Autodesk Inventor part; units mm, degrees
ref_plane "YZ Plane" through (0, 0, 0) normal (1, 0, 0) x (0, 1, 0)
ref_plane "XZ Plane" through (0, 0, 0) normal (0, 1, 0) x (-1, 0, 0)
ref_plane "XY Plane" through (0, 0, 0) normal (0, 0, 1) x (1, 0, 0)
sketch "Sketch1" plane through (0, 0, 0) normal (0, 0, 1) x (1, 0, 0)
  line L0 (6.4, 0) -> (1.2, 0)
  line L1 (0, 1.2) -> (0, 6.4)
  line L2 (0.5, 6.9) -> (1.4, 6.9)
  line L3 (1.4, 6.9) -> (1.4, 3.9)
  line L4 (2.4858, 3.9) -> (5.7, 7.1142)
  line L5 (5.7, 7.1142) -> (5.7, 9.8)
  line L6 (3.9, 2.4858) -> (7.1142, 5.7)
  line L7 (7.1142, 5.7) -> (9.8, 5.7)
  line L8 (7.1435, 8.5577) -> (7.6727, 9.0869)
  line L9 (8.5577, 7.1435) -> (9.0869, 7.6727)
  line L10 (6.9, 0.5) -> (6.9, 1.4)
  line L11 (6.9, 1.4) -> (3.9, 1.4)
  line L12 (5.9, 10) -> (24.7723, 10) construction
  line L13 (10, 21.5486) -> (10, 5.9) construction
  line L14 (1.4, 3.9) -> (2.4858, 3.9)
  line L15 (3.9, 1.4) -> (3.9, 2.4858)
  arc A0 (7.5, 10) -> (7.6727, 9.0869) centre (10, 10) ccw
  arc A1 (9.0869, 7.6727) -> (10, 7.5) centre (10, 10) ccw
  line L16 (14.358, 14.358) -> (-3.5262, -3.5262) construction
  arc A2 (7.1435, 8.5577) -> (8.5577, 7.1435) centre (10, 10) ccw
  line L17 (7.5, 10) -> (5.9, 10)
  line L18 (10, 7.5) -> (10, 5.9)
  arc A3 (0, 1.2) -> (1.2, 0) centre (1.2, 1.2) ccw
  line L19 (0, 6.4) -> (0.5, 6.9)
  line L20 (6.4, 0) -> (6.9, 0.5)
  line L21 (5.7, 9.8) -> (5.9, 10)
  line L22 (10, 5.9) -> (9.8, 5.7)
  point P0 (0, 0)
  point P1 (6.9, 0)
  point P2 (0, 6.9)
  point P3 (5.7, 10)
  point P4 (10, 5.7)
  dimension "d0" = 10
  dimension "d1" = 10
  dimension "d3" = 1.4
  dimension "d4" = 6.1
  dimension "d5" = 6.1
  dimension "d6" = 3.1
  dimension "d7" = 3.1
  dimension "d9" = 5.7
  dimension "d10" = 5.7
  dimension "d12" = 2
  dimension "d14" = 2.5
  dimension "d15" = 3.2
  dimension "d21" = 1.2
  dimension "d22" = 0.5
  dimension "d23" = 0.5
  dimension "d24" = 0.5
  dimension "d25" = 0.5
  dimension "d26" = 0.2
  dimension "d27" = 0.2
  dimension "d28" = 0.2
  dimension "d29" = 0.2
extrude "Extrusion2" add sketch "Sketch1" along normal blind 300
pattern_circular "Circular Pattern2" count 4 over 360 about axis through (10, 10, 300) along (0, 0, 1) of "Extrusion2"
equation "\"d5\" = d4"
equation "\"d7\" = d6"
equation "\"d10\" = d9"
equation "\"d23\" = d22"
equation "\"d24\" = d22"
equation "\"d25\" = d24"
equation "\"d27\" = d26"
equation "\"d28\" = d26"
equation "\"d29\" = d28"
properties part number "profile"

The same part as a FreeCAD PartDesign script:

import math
import FreeCAD as App
import Part
import Sketcher
from FreeCAD import Vector

doc = App.newDocument("Part")
body = doc.addObject("PartDesign::Body", "Body")

sketch1 = doc.addObject("Sketcher::SketchObject", "Sketch")
body.addObject(sketch1)
sketch1.AttachmentSupport = (doc.XY_Plane, [""])
sketch1.MapMode = "FlatFace"
sketch1.addGeometry(Part.LineSegment(Vector(1.2, 0, 0), Vector(6.4, 0, 0)), False)
sketch1.addGeometry(Part.LineSegment(Vector(6.4, 0, 0), Vector(6.9, 0.5, 0)), False)
sketch1.addGeometry(Part.LineSegment(Vector(6.9, 0.5, 0), Vector(6.9, 1.4, 0)), False)
sketch1.addGeometry(Part.LineSegment(Vector(6.9, 1.4, 0), Vector(3.9, 1.4, 0)), False)
sketch1.addGeometry(Part.LineSegment(Vector(3.9, 1.4, 0), Vector(3.9, 2.49, 0)), False)
sketch1.addGeometry(Part.LineSegment(Vector(3.9, 2.49, 0), Vector(7.11, 5.7, 0)), False)
sketch1.addGeometry(Part.LineSegment(Vector(7.11, 5.7, 0), Vector(9.8, 5.7, 0)), False)
sketch1.addGeometry(Part.LineSegment(Vector(9.8, 5.7, 0), Vector(10, 5.9, 0)), False)
sketch1.addGeometry(Part.LineSegment(Vector(10, 5.9, 0), Vector(10, 7.5, 0)), False)
sketch1.addGeometry(Part.ArcOfCircle(Part.Circle(Vector(10, 10, 0), Vector(0, 0, 1), 2.5), math.radians(-111), math.radians(-90)), False)
sketch1.addGeometry(Part.LineSegment(Vector(9.09, 7.67, 0), Vector(8.56, 7.14, 0)), False)
sketch1.addGeometry(Part.ArcOfCircle(Part.Circle(Vector(10, 10, 0), Vector(0, 0, 1), 3.2), math.radians(-153), math.radians(-117)), False)
sketch1.addGeometry(Part.LineSegment(Vector(7.14, 8.56, 0), Vector(7.67, 9.09, 0)), False)
sketch1.addGeometry(Part.ArcOfCircle(Part.Circle(Vector(10, 10, 0), Vector(0, 0, 1), 2.5), math.radians(180), math.radians(201)), False)
sketch1.addGeometry(Part.LineSegment(Vector(7.5, 10, 0), Vector(5.9, 10, 0)), False)
sketch1.addGeometry(Part.LineSegment(Vector(5.9, 10, 0), Vector(5.7, 9.8, 0)), False)
sketch1.addGeometry(Part.LineSegment(Vector(5.7, 9.8, 0), Vector(5.7, 7.11, 0)), False)
sketch1.addGeometry(Part.LineSegment(Vector(5.7, 7.11, 0), Vector(2.49, 3.9, 0)), False)
sketch1.addGeometry(Part.LineSegment(Vector(2.49, 3.9, 0), Vector(1.4, 3.9, 0)), False)
sketch1.addGeometry(Part.LineSegment(Vector(1.4, 3.9, 0), Vector(1.4, 6.9, 0)), False)
sketch1.addGeometry(Part.LineSegment(Vector(1.4, 6.9, 0), Vector(0.5, 6.9, 0)), False)
sketch1.addGeometry(Part.LineSegment(Vector(0.5, 6.9, 0), Vector(0, 6.4, 0)), False)
sketch1.addGeometry(Part.LineSegment(Vector(0, 6.4, 0), Vector(0, 1.2, 0)), False)
sketch1.addGeometry(Part.ArcOfCircle(Part.Circle(Vector(1.2, 1.2, 0), Vector(0, 0, 1), 1.2), math.radians(180), math.radians(270)), False)
sketch1.addConstraint(Sketcher.Constraint("Coincident", 0, 2, 1, 1))
sketch1.addConstraint(Sketcher.Constraint("Coincident", 1, 2, 2, 1))
sketch1.addConstraint(Sketcher.Constraint("Coincident", 2, 2, 3, 1))
sketch1.addConstraint(Sketcher.Constraint("Coincident", 3, 2, 4, 1))
sketch1.addConstraint(Sketcher.Constraint("Coincident", 4, 2, 5, 1))
sketch1.addConstraint(Sketcher.Constraint("Coincident", 5, 2, 6, 1))
sketch1.addConstraint(Sketcher.Constraint("Coincident", 6, 2, 7, 1))
sketch1.addConstraint(Sketcher.Constraint("Coincident", 7, 2, 8, 1))
sketch1.addConstraint(Sketcher.Constraint("Coincident", 8, 2, 9, 2))
sketch1.addConstraint(Sketcher.Constraint("Coincident", 9, 1, 10, 1))
sketch1.addConstraint(Sketcher.Constraint("Coincident", 10, 2, 11, 2))
sketch1.addConstraint(Sketcher.Constraint("Coincident", 11, 1, 12, 1))
sketch1.addConstraint(Sketcher.Constraint("Coincident", 12, 2, 13, 2))
sketch1.addConstraint(Sketcher.Constraint("Coincident", 13, 1, 14, 1))
sketch1.addConstraint(Sketcher.Constraint("Coincident", 14, 2, 15, 1))
sketch1.addConstraint(Sketcher.Constraint("Coincident", 15, 2, 16, 1))
sketch1.addConstraint(Sketcher.Constraint("Coincident", 16, 2, 17, 1))
sketch1.addConstraint(Sketcher.Constraint("Coincident", 17, 2, 18, 1))
sketch1.addConstraint(Sketcher.Constraint("Coincident", 18, 2, 19, 1))
sketch1.addConstraint(Sketcher.Constraint("Coincident", 19, 2, 20, 1))
sketch1.addConstraint(Sketcher.Constraint("Coincident", 20, 2, 21, 1))
sketch1.addConstraint(Sketcher.Constraint("Coincident", 21, 2, 22, 1))
sketch1.addConstraint(Sketcher.Constraint("Tangent", 22, 2, 23, 1))
sketch1.addConstraint(Sketcher.Constraint("Tangent", 23, 2, 0, 1))
sketch1.addConstraint(Sketcher.Constraint("Horizontal", 0))
sketch1.addConstraint(Sketcher.Constraint("Vertical", 2))
sketch1.addConstraint(Sketcher.Constraint("Horizontal", 3))
sketch1.addConstraint(Sketcher.Constraint("Vertical", 4))
sketch1.addConstraint(Sketcher.Constraint("Horizontal", 6))
sketch1.addConstraint(Sketcher.Constraint("Vertical", 8))
sketch1.addConstraint(Sketcher.Constraint("Horizontal", 14))
sketch1.addConstraint(Sketcher.Constraint("Vertical", 16))
sketch1.addConstraint(Sketcher.Constraint("Horizontal", 18))
sketch1.addConstraint(Sketcher.Constraint("Vertical", 19))
sketch1.addConstraint(Sketcher.Constraint("Horizontal", 20))
sketch1.addConstraint(Sketcher.Constraint("Vertical", 22))
sketch1.addConstraint(Sketcher.Constraint("Coincident", 11, 3, 9, 3))
sketch1.addConstraint(Sketcher.Constraint("Coincident", 13, 3, 9, 3))
sketch1.addConstraint(Sketcher.Constraint("Equal", 9, 13))
sketch1.addConstraint(Sketcher.Constraint("PointOnObject", 0, 2, -1))
sketch1.addConstraint(Sketcher.Constraint("PointOnObject", 21, 2, -2))
sketch1.addConstraint(Sketcher.Constraint("Parallel", 1, 5))
sketch1.addConstraint(Sketcher.Constraint("Parallel", 5, 7))
sketch1.addConstraint(Sketcher.Constraint("Parallel", 7, 10))
sketch1.addConstraint(Sketcher.Constraint("Parallel", 10, 12))
sketch1.addConstraint(Sketcher.Constraint("Parallel", 12, 15))
sketch1.addConstraint(Sketcher.Constraint("Parallel", 15, 17))
sketch1.addConstraint(Sketcher.Constraint("Parallel", 17, 21))
sketch1.addConstraint(Sketcher.Constraint("Horizontal", 11, 3, 13, 1))
sketch1.addConstraint(Sketcher.Constraint("Vertical", 13, 3, 7, 2))
sketch1.addConstraint(Sketcher.Constraint("Equal", 20, 2))
sketch1.addConstraint(Sketcher.Constraint("Equal", 18, 4))
sketch1.addConstraint(Sketcher.Constraint("Equal", 14, 8))
sketch1.addConstraint(Sketcher.Constraint("Equal", 6, 16))
sketch1.addConstraint(Sketcher.Constraint("Equal", 3, 19))
sketch1.addConstraint(Sketcher.Constraint("Equal", 0, 22))
sketch1.addConstraint(Sketcher.Constraint("Equal", 10, 12))
sketch1.addConstraint(Sketcher.Constraint("Equal", 7, 15))
sketch1.addConstraint(Sketcher.Constraint("Equal", 5, 17))
sketch1.addConstraint(Sketcher.Constraint("Radius", 9, 2.5))
sketch1.addConstraint(Sketcher.Constraint("Radius", 11, 3.2))
sketch1.addConstraint(Sketcher.Constraint("Radius", 23, 1.2))
sketch1.addConstraint(Sketcher.Constraint("DistanceX", -1, 1, 9, 3, 10.0))
sketch1.addConstraint(Sketcher.Constraint("DistanceY", -1, 1, 9, 3, 10.0))
sketch1.addConstraint(Sketcher.Constraint("DistanceY", -1, 1, 1, 2, 0.5))
sketch1.addConstraint(Sketcher.Constraint("DistanceY", -1, 1, 2, 2, 1.4))
sketch1.addConstraint(Sketcher.Constraint("DistanceY", -1, 1, 5, 2, 5.7))
sketch1.addConstraint(Sketcher.Constraint("DistanceX", 23, 3, 1, 2, 5.7))
sketch1.addConstraint(Sketcher.Constraint("DistanceX", 3, 2, 0, 2, 2.5))
sketch1.addConstraint(Sketcher.Constraint("DistanceX", 6, 2, 9, 3, 0.2))
sketch1.addConstraint(Sketcher.Constraint("DistanceX", 6, 1, 6, 2, 2.6858))
sketch1.addConstraint(Sketcher.Constraint("DistanceX", -1, 1, 9, 1, 9.087))
pad1 = doc.addObject("PartDesign::Pad", "Pad")
body.addObject(pad1)
pad1.Profile = sketch1
pad1.Length = 300
doc.recompute()

datumline = doc.addObject("PartDesign::Line", "DatumLine")
body.addObject(datumline)
datumline.Placement = App.Placement(Vector(10, 10, 0), App.Rotation(Vector(0, 0, 1), Vector(0, 0, 1)))
polarpattern = doc.addObject("PartDesign::PolarPattern", "PolarPattern")
body.addObject(polarpattern)
polarpattern.Originals = [pad1]
polarpattern.Axis = (datumline, [""])
polarpattern.Angle = 360
polarpattern.Occurrences = 4
body.Tip = polarpattern

doc.recompute()
